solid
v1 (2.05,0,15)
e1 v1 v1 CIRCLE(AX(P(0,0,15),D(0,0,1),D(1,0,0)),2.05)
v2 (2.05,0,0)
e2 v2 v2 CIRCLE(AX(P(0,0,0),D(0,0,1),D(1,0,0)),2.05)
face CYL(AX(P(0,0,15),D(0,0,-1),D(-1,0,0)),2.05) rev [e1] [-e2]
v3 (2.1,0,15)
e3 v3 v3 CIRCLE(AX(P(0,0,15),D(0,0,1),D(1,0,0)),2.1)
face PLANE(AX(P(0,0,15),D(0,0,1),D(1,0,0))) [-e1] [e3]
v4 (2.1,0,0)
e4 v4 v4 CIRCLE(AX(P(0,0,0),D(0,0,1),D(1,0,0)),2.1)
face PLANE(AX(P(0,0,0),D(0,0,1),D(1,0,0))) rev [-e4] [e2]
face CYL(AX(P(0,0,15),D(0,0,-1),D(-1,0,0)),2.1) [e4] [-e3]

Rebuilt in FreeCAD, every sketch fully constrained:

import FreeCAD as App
import Part
import Sketcher

V = App.Vector
Q = App.Units.Quantity

doc = App.newDocument("Part")
params = doc.addObject("Spreadsheet::Sheet", "Params")
for row, (alias, value) in enumerate([
    ("sketch1_diameter", "4.2 mm"),
    ("sketch1_diameter2", "4.1 mm"),
    ("pad1_length", "15 mm"),
], start=1):
    params.set(f"A{row}", alias)
    params.set(f"B{row}", "=" + value)
    params.setAlias(f"B{row}", alias)

body = doc.addObject("PartDesign::Body", "Body")

sketch1 = body.newObject("Sketcher::SketchObject", "Sketch")
sketch1.AttachmentSupport = (doc.getObject("XY_Plane"), [""])
sketch1.MapMode = "FlatFace"
sketch1.addGeometry([
    Part.Circle(V(0, 0, 0), V(0, 0, 1), 2.1),
    Part.Circle(V(0, 0, 0), V(0, 0, 1), 2),
], False)
sketch1.addConstraint([
    Sketcher.Constraint("Coincident", 0, 3, -1, 1),
    Sketcher.Constraint("Coincident", 1, 3, -1, 1),
    Sketcher.Constraint("Diameter", 0, Q("4.2 mm")),
    Sketcher.Constraint("Diameter", 1, Q("4.1 mm")),
])
sketch1.setExpression("Constraints[2]", "Params.sketch1_diameter")
sketch1.setExpression("Constraints[3]", "Params.sketch1_diameter2")
pad1 = body.newObject("PartDesign::Pad", "Pad")
pad1.Profile = sketch1
pad1.setExpression("Length", "Params.pad1_length")

doc.recompute()
